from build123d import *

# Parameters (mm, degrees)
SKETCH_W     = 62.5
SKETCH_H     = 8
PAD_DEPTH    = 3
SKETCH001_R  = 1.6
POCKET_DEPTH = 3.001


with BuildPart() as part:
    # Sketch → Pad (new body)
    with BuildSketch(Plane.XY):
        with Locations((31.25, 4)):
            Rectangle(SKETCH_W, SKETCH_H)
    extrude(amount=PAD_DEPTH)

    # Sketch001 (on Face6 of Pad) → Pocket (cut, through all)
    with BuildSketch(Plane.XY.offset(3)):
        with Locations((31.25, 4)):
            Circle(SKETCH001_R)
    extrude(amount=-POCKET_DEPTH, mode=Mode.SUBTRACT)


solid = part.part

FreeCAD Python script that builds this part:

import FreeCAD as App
import Part
import Sketcher
from FreeCAD import Vector
Q = App.Units.Quantity


def add_polygon(sketch, points):
    """Adds a closed chain of lines whose ends are joined by coincident constraints."""
    first, n = sketch.GeometryCount, len(points)
    for a, b in zip(points, points[1:] + points[:1]):
        sketch.addGeometry(Part.LineSegment(App.Vector(*a, 0), App.Vector(*b, 0)), False)
    for i in range(n):
        sketch.addConstraint(Sketcher.Constraint("Coincident", first + i, 2, first + (i + 1) % n, 1))

doc = App.newDocument("Part")
body = doc.addObject("PartDesign::Body", "Body")

# Sketch on XY plane
sketch1 = body.newObject("Sketcher::SketchObject", "Sketch")
sketch1.AttachmentSupport = (doc.getObject("XY_Plane"), [""])
sketch1.MapMode = "FlatFace"
add_polygon(sketch1, [(0, 8), (0, 0), (62.5, 0), (62.5, 8)])  # lines 0-3
sketch1.addConstraint([
    Sketcher.Constraint("Vertical", 0),
    Sketcher.Constraint("Horizontal", 1),
    Sketcher.Constraint("Vertical", 2),
    Sketcher.Constraint("Horizontal", 3),
    Sketcher.Constraint("Coincident", 0, 2, -1, 1),
    Sketcher.Constraint("DistanceY", 0, 2, 0, 1, Q("8 mm")),
    Sketcher.Constraint("DistanceX", 1, 1, 1, 2, Q("62.5 mm")),
])
pad1 = body.newObject("PartDesign::Pad", "Pad")
pad1.Profile = sketch1
pad1.Length = 3

# Sketch on XY plane
sketch2 = body.newObject("Sketcher::SketchObject", "Sketch001")
sketch2.AttachmentSupport = (doc.getObject("XY_Plane"), [""])
sketch2.MapMode = "FlatFace"
sketch2.AttachmentOffset = App.Placement(Vector(0, 0, 3), App.Rotation())
sketch2.addGeometry(Part.Circle(Vector(31.25, 4, 0), Vector(0, 0, 1), 1.6), False)
sketch2.addConstraint([
    Sketcher.Constraint("Diameter", 0, Q("3.2 mm")),
    Sketcher.Constraint("DistanceY", -1, 1, 0, 3, Q("4 mm")),
    Sketcher.Constraint("DistanceX", -1, 1, 0, 3, Q("31.25 mm")),
])
pocket1 = body.newObject("PartDesign::Pocket", "Pocket")
pocket1.Profile = sketch2
pocket1.Type = "ThroughAll"

doc.recompute()
